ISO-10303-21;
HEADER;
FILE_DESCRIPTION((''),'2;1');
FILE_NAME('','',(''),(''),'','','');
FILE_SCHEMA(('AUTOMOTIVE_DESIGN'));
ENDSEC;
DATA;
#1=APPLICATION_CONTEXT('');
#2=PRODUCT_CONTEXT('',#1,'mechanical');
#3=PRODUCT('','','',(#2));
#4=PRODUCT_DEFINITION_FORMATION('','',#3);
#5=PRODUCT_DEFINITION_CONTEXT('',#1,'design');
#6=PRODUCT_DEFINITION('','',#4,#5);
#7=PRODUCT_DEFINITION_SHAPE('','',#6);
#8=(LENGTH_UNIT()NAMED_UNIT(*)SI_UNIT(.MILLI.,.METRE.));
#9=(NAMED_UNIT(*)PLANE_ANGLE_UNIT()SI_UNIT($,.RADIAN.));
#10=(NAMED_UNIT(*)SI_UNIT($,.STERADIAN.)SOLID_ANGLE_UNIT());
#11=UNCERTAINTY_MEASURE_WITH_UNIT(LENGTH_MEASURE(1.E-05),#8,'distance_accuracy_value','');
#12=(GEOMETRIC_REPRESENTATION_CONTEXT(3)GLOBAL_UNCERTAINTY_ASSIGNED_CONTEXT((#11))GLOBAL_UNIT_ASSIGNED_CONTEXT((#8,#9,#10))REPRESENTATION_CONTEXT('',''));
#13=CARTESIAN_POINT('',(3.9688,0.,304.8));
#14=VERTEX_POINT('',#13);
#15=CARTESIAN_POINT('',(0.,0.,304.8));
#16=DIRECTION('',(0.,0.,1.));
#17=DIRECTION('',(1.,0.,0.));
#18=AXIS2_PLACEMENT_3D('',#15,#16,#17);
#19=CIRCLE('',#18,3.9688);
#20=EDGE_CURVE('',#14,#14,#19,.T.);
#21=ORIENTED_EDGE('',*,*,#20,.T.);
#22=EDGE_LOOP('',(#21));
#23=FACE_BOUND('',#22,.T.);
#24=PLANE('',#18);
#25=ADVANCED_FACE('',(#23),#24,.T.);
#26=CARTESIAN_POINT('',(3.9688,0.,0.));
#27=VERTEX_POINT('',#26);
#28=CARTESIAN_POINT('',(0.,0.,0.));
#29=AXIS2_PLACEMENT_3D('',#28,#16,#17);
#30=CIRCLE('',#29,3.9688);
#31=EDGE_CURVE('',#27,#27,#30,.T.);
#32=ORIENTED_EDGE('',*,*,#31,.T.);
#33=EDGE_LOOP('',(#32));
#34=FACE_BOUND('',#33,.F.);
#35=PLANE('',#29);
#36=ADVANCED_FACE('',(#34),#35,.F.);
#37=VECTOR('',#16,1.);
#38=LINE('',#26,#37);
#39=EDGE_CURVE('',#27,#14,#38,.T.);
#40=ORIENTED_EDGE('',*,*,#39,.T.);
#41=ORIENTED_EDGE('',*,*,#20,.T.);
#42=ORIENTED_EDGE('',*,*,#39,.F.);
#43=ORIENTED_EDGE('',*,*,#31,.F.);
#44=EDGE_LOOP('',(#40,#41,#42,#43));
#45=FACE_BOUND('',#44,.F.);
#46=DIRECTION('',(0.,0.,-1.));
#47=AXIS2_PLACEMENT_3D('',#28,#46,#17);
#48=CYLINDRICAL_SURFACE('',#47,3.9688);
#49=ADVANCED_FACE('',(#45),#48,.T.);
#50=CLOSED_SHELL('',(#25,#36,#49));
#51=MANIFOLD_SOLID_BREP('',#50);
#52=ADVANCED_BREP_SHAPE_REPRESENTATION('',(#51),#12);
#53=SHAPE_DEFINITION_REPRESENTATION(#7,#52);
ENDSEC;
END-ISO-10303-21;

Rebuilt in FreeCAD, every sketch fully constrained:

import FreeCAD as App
import Part
import Sketcher
from FreeCAD import Vector
Q = App.Units.Quantity

doc = App.newDocument("Part")
params = doc.addObject("Spreadsheet::Sheet", "Params")
for row, (alias, value) in enumerate([
    ("sketch1_diameter", "0.3125 in"),
    ("pad1_length", "12 in"),
], start=1):
    params.set(f"A{row}", alias)
    params.set(f"B{row}", "=" + value)
    params.setAlias(f"B{row}", alias)

body = doc.addObject("PartDesign::Body", "Body")

# Sketch on XY plane
sketch1 = doc.addObject("Sketcher::SketchObject", "Sketch")
body.addObject(sketch1)
sketch1.AttachmentSupport = (doc.XY_Plane, [""])
sketch1.MapMode = "FlatFace"
sketch1.addGeometry(Part.Circle(Vector(0, 0, 0), Vector(0, 0, 1), 3.9688), False)
sketch1.addConstraint([
    Sketcher.Constraint("Coincident", 0, 3, -1, 1),
    Sketcher.Constraint("Diameter", 0, Q("0.3125 in")),
])
sketch1.setExpression("Constraints[1]", "Params.sketch1_diameter")
pad1 = doc.addObject("PartDesign::Pad", "Pad")
body.addObject(pad1)
pad1.Profile = sketch1
pad1.setExpression("Length", "Params.pad1_length")

doc.recompute()
